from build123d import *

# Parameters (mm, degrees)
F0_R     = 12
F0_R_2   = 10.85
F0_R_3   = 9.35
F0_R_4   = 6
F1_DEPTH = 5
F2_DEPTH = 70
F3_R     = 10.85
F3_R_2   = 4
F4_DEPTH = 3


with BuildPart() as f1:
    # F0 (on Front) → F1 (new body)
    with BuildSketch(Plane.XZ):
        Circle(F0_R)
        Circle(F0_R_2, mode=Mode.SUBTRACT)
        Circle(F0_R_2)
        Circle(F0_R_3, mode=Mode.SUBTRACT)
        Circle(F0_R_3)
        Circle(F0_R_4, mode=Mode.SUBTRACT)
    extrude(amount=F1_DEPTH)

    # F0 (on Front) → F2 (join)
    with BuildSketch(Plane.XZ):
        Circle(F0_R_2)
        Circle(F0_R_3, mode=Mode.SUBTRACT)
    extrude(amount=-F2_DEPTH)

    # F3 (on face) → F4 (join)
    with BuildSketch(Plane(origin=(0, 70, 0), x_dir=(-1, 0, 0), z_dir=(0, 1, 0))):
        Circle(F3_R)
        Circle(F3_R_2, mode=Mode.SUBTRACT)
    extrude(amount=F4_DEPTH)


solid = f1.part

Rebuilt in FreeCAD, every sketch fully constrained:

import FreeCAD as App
import Part
import Sketcher
Q = App.Units.Quantity

doc = App.newDocument("Part")
body = doc.addObject("PartDesign::Body", "Body")

sketch1 = doc.addObject("Sketcher::SketchObject", "Sketch")
body.addObject(sketch1)
sketch1.AttachmentSupport = (doc.XZ_Plane, [""])
sketch1.MapMode = "FlatFace"
sketch1.addGeometry([
    Part.Circle(App.Vector(0, 0, 0), App.Vector(0, 0, 1), 12),
    Part.Circle(App.Vector(0, 0, 0), App.Vector(0, 0, 1), 6),
], False)
sketch1.addConstraint([
    Sketcher.Constraint("Coincident", 0, 3, -1, 1),
    Sketcher.Constraint("Coincident", 1, 3, -1, 1),
    Sketcher.Constraint("Diameter", 0, Q("24 mm")),
    Sketcher.Constraint("Diameter", 1, Q("12 mm")),
])
pad1 = doc.addObject("PartDesign::Pad", "Pad")
body.addObject(pad1)
pad1.Profile = sketch1
pad1.Length = 5

sketch2 = doc.addObject("Sketcher::SketchObject", "Sketch001")
body.addObject(sketch2)
sketch2.AttachmentSupport = (doc.XZ_Plane, [""])
sketch2.MapMode = "FlatFace"
sketch2.addGeometry([
    Part.Circle(App.Vector(0, 0, 0), App.Vector(0, 0, 1), 11),
    Part.Circle(App.Vector(0, 0, 0), App.Vector(0, 0, 1), 9),
], False)
sketch2.addConstraint([
    Sketcher.Constraint("Coincident", 0, 3, -1, 1),
    Sketcher.Constraint("Coincident", 1, 3, -1, 1),
    Sketcher.Constraint("Diameter", 0, Q("21.7 mm")),
    Sketcher.Constraint("Diameter", 1, Q("18.7 mm")),
])
pad2 = doc.addObject("PartDesign::Pad", "Pad001")
body.addObject(pad2)
pad2.Profile = sketch2
pad2.Length = 70
pad2.Reversed = True

sketch3 = doc.addObject("Sketcher::SketchObject", "Sketch002")
body.addObject(sketch3)
sketch3.AttachmentSupport = (doc.XZ_Plane, [""])
sketch3.MapMode = "FlatFace"
sketch3.AttachmentOffset = App.Placement(App.Vector(0, 0, -70), App.Rotation())
sketch3.addGeometry([
    Part.Circle(App.Vector(0, 0, 0), App.Vector(0, 0, 1), 10.8),
    Part.Circle(App.Vector(0, 0, 0), App.Vector(0, 0, 1), 4),
], False)
sketch3.addConstraint([
    Sketcher.Constraint("Coincident", 0, 3, -1, 1),
    Sketcher.Constraint("Coincident", 1, 3, -1, 1),
    Sketcher.Constraint("Diameter", 1, Q("8 mm")),
    Sketcher.Constraint("Diameter", 0, Q("21.7 mm")),
])
pad3 = doc.addObject("PartDesign::Pad", "Pad002")
body.addObject(pad3)
pad3.Profile = sketch3
pad3.Length = 3
pad3.Reversed = True

doc.recompute()
